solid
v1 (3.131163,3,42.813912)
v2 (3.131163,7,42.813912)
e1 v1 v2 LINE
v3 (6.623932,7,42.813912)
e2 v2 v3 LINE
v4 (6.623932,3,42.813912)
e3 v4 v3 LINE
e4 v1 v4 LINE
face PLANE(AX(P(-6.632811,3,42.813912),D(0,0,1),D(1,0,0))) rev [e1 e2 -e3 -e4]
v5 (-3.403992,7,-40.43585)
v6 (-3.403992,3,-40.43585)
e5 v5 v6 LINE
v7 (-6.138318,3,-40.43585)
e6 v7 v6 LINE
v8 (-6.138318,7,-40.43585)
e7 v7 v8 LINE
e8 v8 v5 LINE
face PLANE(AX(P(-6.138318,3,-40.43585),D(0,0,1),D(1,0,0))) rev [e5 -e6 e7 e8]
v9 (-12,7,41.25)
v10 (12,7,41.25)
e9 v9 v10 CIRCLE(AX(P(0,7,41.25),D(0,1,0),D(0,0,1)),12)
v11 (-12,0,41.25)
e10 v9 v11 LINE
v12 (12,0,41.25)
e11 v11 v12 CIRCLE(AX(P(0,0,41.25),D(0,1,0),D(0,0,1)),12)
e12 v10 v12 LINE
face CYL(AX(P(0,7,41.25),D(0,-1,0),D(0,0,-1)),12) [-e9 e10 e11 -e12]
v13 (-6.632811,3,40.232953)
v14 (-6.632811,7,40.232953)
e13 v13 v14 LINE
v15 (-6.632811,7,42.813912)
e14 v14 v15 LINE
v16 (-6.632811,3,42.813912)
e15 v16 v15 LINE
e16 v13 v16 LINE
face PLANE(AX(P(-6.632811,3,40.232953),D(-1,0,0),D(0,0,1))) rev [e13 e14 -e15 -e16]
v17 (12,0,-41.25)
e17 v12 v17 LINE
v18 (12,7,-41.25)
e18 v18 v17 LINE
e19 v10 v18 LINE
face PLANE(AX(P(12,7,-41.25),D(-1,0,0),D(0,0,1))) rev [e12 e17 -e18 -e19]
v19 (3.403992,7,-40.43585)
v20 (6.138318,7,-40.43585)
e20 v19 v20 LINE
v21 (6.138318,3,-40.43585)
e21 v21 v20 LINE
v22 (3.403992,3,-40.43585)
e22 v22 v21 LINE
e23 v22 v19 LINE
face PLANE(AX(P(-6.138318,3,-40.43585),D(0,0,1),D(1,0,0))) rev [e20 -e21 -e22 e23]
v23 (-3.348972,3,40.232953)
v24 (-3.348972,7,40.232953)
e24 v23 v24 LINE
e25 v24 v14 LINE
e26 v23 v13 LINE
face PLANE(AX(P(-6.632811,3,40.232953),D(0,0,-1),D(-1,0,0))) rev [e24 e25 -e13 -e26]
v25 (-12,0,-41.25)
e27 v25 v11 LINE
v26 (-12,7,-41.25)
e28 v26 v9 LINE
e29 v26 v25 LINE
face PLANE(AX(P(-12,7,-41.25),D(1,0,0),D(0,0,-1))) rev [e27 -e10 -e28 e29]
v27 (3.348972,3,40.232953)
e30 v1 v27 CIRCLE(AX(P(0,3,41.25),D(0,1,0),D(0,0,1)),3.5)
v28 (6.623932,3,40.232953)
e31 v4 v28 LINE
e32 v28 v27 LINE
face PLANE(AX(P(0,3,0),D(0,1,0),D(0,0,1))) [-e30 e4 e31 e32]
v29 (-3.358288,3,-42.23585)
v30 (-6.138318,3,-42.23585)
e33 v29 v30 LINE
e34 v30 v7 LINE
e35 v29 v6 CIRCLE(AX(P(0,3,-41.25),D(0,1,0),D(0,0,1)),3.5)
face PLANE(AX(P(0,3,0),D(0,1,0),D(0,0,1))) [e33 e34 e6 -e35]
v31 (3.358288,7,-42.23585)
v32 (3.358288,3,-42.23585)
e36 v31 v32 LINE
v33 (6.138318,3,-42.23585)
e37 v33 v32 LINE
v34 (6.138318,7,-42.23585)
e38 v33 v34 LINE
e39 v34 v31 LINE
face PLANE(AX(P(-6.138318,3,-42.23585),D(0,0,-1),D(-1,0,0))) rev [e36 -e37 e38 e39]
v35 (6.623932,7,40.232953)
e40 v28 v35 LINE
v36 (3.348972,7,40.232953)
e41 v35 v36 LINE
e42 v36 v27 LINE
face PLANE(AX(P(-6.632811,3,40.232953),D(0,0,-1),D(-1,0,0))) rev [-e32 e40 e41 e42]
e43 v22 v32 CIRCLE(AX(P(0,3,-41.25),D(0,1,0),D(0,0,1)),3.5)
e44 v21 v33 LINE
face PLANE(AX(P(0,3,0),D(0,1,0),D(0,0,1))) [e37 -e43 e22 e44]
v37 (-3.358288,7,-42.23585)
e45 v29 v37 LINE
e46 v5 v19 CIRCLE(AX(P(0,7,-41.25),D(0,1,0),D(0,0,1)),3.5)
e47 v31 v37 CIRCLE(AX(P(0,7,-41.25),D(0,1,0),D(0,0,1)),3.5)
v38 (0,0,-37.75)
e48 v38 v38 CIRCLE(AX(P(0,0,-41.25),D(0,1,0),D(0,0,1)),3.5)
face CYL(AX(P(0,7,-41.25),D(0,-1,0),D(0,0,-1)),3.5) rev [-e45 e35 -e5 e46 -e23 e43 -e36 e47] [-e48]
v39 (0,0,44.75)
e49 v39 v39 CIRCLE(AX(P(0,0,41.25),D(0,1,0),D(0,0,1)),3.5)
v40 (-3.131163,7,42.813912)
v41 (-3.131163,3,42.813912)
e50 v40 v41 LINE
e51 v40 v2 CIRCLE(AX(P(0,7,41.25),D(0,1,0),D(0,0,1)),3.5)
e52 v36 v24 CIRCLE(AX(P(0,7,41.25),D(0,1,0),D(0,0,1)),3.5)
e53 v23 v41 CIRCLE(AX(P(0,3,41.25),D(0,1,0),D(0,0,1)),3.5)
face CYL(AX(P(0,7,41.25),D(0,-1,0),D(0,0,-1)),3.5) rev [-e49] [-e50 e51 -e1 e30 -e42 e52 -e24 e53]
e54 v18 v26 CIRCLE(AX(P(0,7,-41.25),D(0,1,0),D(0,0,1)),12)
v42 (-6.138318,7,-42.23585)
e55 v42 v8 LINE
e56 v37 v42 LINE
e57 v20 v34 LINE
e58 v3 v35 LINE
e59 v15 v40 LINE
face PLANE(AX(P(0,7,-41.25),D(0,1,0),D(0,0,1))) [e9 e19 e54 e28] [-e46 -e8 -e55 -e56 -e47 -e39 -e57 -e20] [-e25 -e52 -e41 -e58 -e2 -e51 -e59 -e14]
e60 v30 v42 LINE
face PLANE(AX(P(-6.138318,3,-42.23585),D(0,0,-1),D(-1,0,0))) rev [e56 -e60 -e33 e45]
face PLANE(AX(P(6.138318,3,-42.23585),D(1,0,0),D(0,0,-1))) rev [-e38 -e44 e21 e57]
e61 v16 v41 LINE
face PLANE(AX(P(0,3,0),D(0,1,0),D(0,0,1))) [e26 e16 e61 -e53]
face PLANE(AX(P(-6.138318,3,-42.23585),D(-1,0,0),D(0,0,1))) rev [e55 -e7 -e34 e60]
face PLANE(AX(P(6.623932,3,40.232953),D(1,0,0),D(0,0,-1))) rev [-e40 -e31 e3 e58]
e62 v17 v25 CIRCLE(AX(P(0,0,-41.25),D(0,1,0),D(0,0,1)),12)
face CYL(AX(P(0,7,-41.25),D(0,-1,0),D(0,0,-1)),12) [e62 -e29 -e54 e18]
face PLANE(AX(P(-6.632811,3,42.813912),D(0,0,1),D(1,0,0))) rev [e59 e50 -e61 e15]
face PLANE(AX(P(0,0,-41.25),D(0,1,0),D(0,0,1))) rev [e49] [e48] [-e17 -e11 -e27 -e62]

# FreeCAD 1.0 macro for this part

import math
import FreeCAD as App
import Part
import Sketcher

V = App.Vector


def add_polygon(sketch, points):
    """Adds a closed chain of lines whose ends are joined by coincident constraints."""
    first, n = sketch.GeometryCount, len(points)
    for a, b in zip(points, points[1:] + points[:1]):
        sketch.addGeometry(Part.LineSegment(App.Vector(*a, 0), App.Vector(*b, 0)), False)
    for i in range(n):
        sketch.addConstraint(Sketcher.Constraint("Coincident", first + i, 2, first + (i + 1) % n, 1))

doc = App.newDocument("Part")
body = doc.addObject("PartDesign::Body", "Body")

sketch1 = body.newObject("Sketcher::SketchObject", "Sketch")
sketch1.AttachmentSupport = (doc.getObject("XZ_Plane"), [""])
sketch1.MapMode = "FlatFace"
sketch1.addGeometry([
    Part.LineSegment(V(-12, -41.25, 0), V(-12, 41.25, 0)),
    Part.ArcOfCircle(Part.Circle(V(0, 41.25, 0), V(0, 0, 1), 12), math.radians(0), math.radians(180)),
    Part.LineSegment(V(12, 41.25, 0), V(12, -41.25, 0)),
    Part.ArcOfCircle(Part.Circle(V(0, -41.25, 0), V(0, 0, 1), 12), math.radians(180), math.radians(360)),
    Part.Circle(V(0, 41.25, 0), V(0, 0, 1), 3.5),
    Part.Circle(V(0, -41.25, 0), V(0, 0, 1), 3.5),
], False)
sketch1.addConstraint([
    Sketcher.Constraint("Tangent", 0, 2, 1, 2),
    Sketcher.Constraint("Tangent", 1, 1, 2, 1),
    Sketcher.Constraint("Tangent", 2, 2, 3, 2),
    Sketcher.Constraint("Tangent", 3, 1, 0, 1),
    Sketcher.Constraint("Vertical", 0),
    Sketcher.Constraint("Vertical", 2),
    Sketcher.Constraint("Coincident", 4, 3, 1, 3),
    Sketcher.Constraint("Coincident", 5, 3, 3, 3),
    Sketcher.Constraint("Equal", 4, 5),
    Sketcher.Constraint("Symmetric", 1, 3, 3, 3, -1, 1),
    Sketcher.Constraint("Diameter", 4, 7.0),
    Sketcher.Constraint("Radius", 1, 12.0),
    Sketcher.Constraint("DistanceY", 0, 1, 0, 2, 82.5),
])
pad1 = body.newObject("PartDesign::Pad", "Pad")
pad1.Profile = sketch1
pad1.Length = 7
pad1.Reversed = True

sketch2 = body.newObject("Sketcher::SketchObject", "Sketch001")
sketch2.AttachmentSupport = (doc.getObject("XZ_Plane"), [""])
sketch2.MapMode = "FlatFace"
sketch2.AttachmentOffset = App.Placement(V(0, 0, -7), App.Rotation())
add_polygon(sketch2, [(-6.632811, 40.232953), (-6.632811, 42.813912), (6.623932, 42.813912), (6.623932, 40.232953)])
add_polygon(sketch2, [(-6.138318, -42.23585), (-6.138318, -40.43585), (6.138318, -40.43585), (6.138318, -42.23585)])
sketch2.addConstraint([
    Sketcher.Constraint("Vertical", 0),
    Sketcher.Constraint("Horizontal", 1),
    Sketcher.Constraint("Vertical", 2),
    Sketcher.Constraint("Horizontal", 3),
    Sketcher.Constraint("Vertical", 4),
    Sketcher.Constraint("Horizontal", 5),
    Sketcher.Constraint("Vertical", 6),
    Sketcher.Constraint("Horizontal", 7),
    Sketcher.Constraint("DistanceY", 4, 1, 4, 2, 1.8),
    Sketcher.Constraint("DistanceY", 0, 1, 0, 2, 2.580959),
    Sketcher.Constraint("DistanceX", 1, 1, 1, 2, 13.256743),
    Sketcher.Constraint("DistanceX", 5, 1, 5, 2, 12.276635),
    Sketcher.Constraint("DistanceX", 0, 2, -1, 1, 6.632811),
    Sketcher.Constraint("DistanceY", -1, 1, 0, 2, 42.813912),
    Sketcher.Constraint("DistanceY", 4, 2, -1, 1, 40.43585),
    Sketcher.Constraint("DistanceX", 4, 2, 2, 2, 12.76225),
])
pocket1 = body.newObject("PartDesign::Pocket", "Pocket")
pocket1.Profile = sketch2
pocket1.Length = 4
pocket1.Reversed = True

doc.recompute()
